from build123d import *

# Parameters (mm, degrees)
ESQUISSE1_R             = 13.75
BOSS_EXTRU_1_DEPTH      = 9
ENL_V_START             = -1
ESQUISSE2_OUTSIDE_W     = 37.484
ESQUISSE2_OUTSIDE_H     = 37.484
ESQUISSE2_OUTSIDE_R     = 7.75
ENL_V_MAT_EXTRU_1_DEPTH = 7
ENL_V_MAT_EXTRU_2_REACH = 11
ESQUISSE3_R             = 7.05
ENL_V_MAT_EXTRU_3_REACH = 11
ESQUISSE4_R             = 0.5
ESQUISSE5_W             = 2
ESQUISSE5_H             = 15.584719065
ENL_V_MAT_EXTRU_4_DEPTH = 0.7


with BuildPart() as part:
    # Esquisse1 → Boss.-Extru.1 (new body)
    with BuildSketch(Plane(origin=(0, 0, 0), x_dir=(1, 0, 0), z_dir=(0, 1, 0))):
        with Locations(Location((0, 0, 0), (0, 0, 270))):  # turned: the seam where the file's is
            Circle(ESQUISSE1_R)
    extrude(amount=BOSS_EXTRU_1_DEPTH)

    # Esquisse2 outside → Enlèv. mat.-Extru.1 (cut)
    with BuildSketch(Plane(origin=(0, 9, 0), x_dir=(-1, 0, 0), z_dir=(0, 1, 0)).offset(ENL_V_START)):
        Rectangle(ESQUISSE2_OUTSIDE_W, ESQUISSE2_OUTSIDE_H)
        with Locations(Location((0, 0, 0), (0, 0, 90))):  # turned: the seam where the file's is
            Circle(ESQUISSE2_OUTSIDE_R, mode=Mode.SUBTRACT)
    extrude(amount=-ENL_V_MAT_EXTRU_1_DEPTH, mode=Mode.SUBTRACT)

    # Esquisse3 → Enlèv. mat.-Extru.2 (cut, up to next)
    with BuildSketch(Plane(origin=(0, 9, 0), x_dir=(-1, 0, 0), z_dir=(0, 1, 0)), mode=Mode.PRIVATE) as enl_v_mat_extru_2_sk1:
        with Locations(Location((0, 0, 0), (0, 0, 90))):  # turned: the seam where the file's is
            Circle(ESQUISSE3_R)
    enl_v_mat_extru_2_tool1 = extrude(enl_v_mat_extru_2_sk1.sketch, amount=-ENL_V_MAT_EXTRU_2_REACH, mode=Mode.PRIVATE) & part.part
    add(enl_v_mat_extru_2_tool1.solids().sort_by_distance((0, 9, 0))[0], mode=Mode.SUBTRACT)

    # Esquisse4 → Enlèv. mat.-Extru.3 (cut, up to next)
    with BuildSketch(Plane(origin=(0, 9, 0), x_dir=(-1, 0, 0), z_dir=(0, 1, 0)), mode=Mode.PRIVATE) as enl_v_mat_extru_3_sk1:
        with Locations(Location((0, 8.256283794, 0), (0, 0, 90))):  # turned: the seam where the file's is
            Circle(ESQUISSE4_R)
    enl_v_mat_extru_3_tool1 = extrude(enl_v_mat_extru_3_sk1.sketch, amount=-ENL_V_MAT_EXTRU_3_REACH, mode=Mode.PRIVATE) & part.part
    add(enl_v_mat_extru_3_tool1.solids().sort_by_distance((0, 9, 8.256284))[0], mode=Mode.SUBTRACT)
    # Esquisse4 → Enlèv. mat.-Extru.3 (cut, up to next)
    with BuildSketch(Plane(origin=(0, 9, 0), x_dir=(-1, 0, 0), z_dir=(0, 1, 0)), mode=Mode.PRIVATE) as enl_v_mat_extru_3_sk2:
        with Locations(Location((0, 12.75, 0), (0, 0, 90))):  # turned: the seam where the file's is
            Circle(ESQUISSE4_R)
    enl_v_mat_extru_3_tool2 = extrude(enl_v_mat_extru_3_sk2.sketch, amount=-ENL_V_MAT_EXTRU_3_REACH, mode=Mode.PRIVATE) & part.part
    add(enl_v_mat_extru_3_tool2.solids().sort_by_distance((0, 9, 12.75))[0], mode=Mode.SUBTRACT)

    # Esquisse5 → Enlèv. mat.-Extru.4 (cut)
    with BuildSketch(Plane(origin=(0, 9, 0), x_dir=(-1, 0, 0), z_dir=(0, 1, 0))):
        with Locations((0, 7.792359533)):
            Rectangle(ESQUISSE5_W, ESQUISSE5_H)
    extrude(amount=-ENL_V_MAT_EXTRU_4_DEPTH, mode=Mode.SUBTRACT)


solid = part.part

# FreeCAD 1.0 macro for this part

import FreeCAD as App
import Part
import Sketcher
Q = App.Units.Quantity

doc = App.newDocument("Part")
body = doc.addObject("PartDesign::Body", "Body")

sketch1 = body.newObject("Sketcher::SketchObject", "Sketch")
sketch1.AttachmentSupport = (doc.getObject("XZ_Plane"), [""])
sketch1.MapMode = "FlatFace"
sketch1.addGeometry(Part.Circle(App.Vector(0, 0, 0), App.Vector(0, 0, 1), 14), False)
sketch1.addConstraint([
    Sketcher.Constraint("Coincident", 0, 3, -1, 1),
    Sketcher.Constraint("Diameter", 0, Q("27.5 mm")),
])
pad1 = body.newObject("PartDesign::Pad", "Pad")
pad1.Profile = sketch1
pad1.Length = 9
pad1.Reversed = True

sketch2 = body.newObject("Sketcher::SketchObject", "Sketch001")
sketch2.AttachmentSupport = (doc.getObject("XZ_Plane"), [""])
sketch2.MapMode = "FlatFace"
sketch2.AttachmentOffset = App.Placement(App.Vector(0, 0, -8), App.Rotation())
sketch2.addGeometry([
    Part.LineSegment(App.Vector(19, 19, 0), App.Vector(19, -19, 0)),
    Part.LineSegment(App.Vector(19, -19, 0), App.Vector(-19, -19, 0)),
    Part.LineSegment(App.Vector(-19, -19, 0), App.Vector(-19, 19, 0)),
    Part.LineSegment(App.Vector(-19, 19, 0), App.Vector(19, 19, 0)),
    Part.Circle(App.Vector(0, 0, 0), App.Vector(0, 0, 1), 8),
], False)
sketch2.addConstraint([
    Sketcher.Constraint("Coincident", 0, 2, 1, 1),
    Sketcher.Constraint("Coincident", 1, 2, 2, 1),
    Sketcher.Constraint("Coincident", 2, 2, 3, 1),
    Sketcher.Constraint("Coincident", 3, 2, 0, 1),
    Sketcher.Constraint("Vertical", 0),
    Sketcher.Constraint("Horizontal", 1),
    Sketcher.Constraint("Vertical", 2),
    Sketcher.Constraint("Horizontal", 3),
    Sketcher.Constraint("Coincident", 4, 3, -1, 1),
    Sketcher.Constraint("Symmetric", 0, 2, 2, 2, -1, 1),
    Sketcher.Constraint("Equal", 3, 0),
    Sketcher.Constraint("Diameter", 4, Q("15.5 mm")),
    Sketcher.Constraint("DistanceX", 1, 2, 1, 1, Q("37.484 mm")),
])
pocket1 = body.newObject("PartDesign::Pocket", "Pocket")
pocket1.Profile = sketch2
pocket1.Length = 7
pocket1.Reversed = True

sketch3 = body.newObject("Sketcher::SketchObject", "Sketch002")
sketch3.AttachmentSupport = (doc.getObject("XZ_Plane"), [""])
sketch3.MapMode = "FlatFace"
sketch3.AttachmentOffset = App.Placement(App.Vector(0, 0, -9), App.Rotation())
sketch3.addGeometry(Part.Circle(App.Vector(0, 0, 0), App.Vector(0, 0, 1), 7), False)
sketch3.addConstraint([
    Sketcher.Constraint("Coincident", 0, 3, -1, 1),
    Sketcher.Constraint("Diameter", 0, Q("14.1 mm")),
])
pocket2 = body.newObject("PartDesign::Pocket", "Pocket001")
pocket2.Profile = sketch3
pocket2.Type = "UpToFirst"
pocket2.Reversed = True

sketch4 = body.newObject("Sketcher::SketchObject", "Sketch003")
sketch4.AttachmentSupport = (doc.getObject("XZ_Plane"), [""])
sketch4.MapMode = "FlatFace"
sketch4.AttachmentOffset = App.Placement(App.Vector(0, 0, -9), App.Rotation())
sketch4.addGeometry(Part.Circle(App.Vector(0, 8.3, 0), App.Vector(0, 0, 1), 0.5), False)
sketch4.addConstraint([
    Sketcher.Constraint("PointOnObject", 0, 3, -2),
    Sketcher.Constraint("Diameter", 0, Q("1 mm")),
    Sketcher.Constraint("DistanceY", -1, 1, 0, 3, Q("8.256284 mm")),
])
pocket3 = body.newObject("PartDesign::Pocket", "Pocket002")
pocket3.Profile = sketch4
pocket3.Type = "UpToFirst"
pocket3.Reversed = True

sketch5 = body.newObject("Sketcher::SketchObject", "Sketch004")
sketch5.AttachmentSupport = (doc.getObject("XZ_Plane"), [""])
sketch5.MapMode = "FlatFace"
sketch5.AttachmentOffset = App.Placement(App.Vector(0, 0, -9), App.Rotation())
sketch5.addGeometry(Part.Circle(App.Vector(0, 12.8, 0), App.Vector(0, 0, 1), 0.5), False)
sketch5.addConstraint([
    Sketcher.Constraint("PointOnObject", 0, 3, -2),
    Sketcher.Constraint("Diameter", 0, Q("1 mm")),
    Sketcher.Constraint("DistanceY", -1, 1, 0, 3, Q("12.75 mm")),
])
pocket4 = body.newObject("PartDesign::Pocket", "Pocket003")
pocket4.Profile = sketch5
pocket4.Type = "UpToFirst"
pocket4.Reversed = True

sketch6 = body.newObject("Sketcher::SketchObject", "Sketch005")
sketch6.AttachmentSupport = (doc.getObject("XZ_Plane"), [""])
sketch6.MapMode = "FlatFace"
sketch6.AttachmentOffset = App.Placement(App.Vector(0, 0, -9), App.Rotation())
sketch6.addGeometry([
    Part.LineSegment(App.Vector(1, 15.6, 0), App.Vector(1, 0, 0)),
    Part.LineSegment(App.Vector(1, 0, 0), App.Vector(-1, 0, 0)),
    Part.LineSegment(App.Vector(-1, 0, 0), App.Vector(-1, 15.6, 0)),
    Part.LineSegment(App.Vector(-1, 15.6, 0), App.Vector(1, 15.6, 0)),
], False)
sketch6.addConstraint([
    Sketcher.Constraint("Coincident", 0, 2, 1, 1),
    Sketcher.Constraint("Coincident", 1, 2, 2, 1),
    Sketcher.Constraint("Coincident", 2, 2, 3, 1),
    Sketcher.Constraint("Coincident", 3, 2, 0, 1),
    Sketcher.Constraint("Vertical", 0),
    Sketcher.Constraint("Horizontal", 1),
    Sketcher.Constraint("Vertical", 2),
    Sketcher.Constraint("Horizontal", 3),
    Sketcher.Constraint("Symmetric", 0, 2, 1, 2, -1, 1),
    Sketcher.Constraint("DistanceX", 1, 2, 1, 1, Q("2 mm")),
    Sketcher.Constraint("DistanceY", 0, 2, 0, 1, Q("15.584719 mm")),
])
pocket5 = body.newObject("PartDesign::Pocket", "Pocket004")
pocket5.Profile = sketch6
pocket5.Length = 0.7
pocket5.Reversed = True

doc.recompute()
